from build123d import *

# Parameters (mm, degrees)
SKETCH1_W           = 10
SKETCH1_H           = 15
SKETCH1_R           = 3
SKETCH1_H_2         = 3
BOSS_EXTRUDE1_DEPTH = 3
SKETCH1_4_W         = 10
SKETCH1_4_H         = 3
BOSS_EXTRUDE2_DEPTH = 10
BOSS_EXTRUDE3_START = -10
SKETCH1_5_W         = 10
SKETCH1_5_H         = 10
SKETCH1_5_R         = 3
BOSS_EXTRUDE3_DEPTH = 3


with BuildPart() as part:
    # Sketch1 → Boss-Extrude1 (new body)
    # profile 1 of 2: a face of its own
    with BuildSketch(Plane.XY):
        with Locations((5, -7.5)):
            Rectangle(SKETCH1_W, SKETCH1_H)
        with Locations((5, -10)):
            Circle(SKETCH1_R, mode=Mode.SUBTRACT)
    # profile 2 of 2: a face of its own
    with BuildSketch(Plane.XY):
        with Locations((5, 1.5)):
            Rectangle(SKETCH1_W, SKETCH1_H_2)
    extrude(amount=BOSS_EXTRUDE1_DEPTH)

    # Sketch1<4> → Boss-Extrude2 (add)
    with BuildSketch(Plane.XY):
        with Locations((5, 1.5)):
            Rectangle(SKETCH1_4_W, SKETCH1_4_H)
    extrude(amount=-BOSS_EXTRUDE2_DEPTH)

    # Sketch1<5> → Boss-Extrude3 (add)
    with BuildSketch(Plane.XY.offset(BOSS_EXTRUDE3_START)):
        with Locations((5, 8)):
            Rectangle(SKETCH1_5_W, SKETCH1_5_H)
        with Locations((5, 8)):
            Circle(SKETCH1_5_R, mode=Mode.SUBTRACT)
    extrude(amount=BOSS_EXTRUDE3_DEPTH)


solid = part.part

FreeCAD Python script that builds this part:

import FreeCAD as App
import Part
import Sketcher
from FreeCAD import Vector
Q = App.Units.Quantity


def add_polygon(sketch, points):
    """Adds a closed chain of lines whose ends are joined by coincident constraints."""
    first, n = sketch.GeometryCount, len(points)
    for a, b in zip(points, points[1:] + points[:1]):
        sketch.addGeometry(Part.LineSegment(App.Vector(*a, 0), App.Vector(*b, 0)), False)
    for i in range(n):
        sketch.addConstraint(Sketcher.Constraint("Coincident", first + i, 2, first + (i + 1) % n, 1))

doc = App.newDocument("Part")
body = doc.addObject("PartDesign::Body", "Body")

# Sketch on XY plane
sketch1 = body.newObject("Sketcher::SketchObject", "Sketch")
sketch1.AttachmentSupport = (doc.getObject("XY_Plane"), [""])
sketch1.MapMode = "FlatFace"
add_polygon(sketch1, [(0, -15), (10, -15), (10, 3), (0, 3)])  # lines 0-3
sketch1.addGeometry(Part.Circle(Vector(5, -10, 0), Vector(0, 0, 1), 3), False)  # 4
sketch1.addConstraint(Sketcher.Constraint("Horizontal", 0))
sketch1.addConstraint(Sketcher.Constraint("Vertical", 1))
sketch1.addConstraint(Sketcher.Constraint("Horizontal", 2))
sketch1.addConstraint(Sketcher.Constraint("Vertical", 3))
sketch1.addConstraint(Sketcher.Constraint("PointOnObject", 2, 2, -2))
sketch1.addConstraint(Sketcher.Constraint("Diameter", 4, Q("6 mm")))
sketch1.addConstraint(Sketcher.Constraint("DistanceX", 0, 1, 0, 2, Q("10 mm")))
sketch1.addConstraint(Sketcher.Constraint("DistanceY", 1, 1, 1, 2, Q("18 mm")))
sketch1.addConstraint(Sketcher.Constraint("DistanceX", -1, 1, 4, 3, Q("5 mm")))
sketch1.addConstraint(Sketcher.Constraint("DistanceY", 4, 3, -1, 1, Q("10 mm")))
sketch1.addConstraint(Sketcher.Constraint("DistanceY", 0, 2, -1, 1, Q("15 mm")))
pad1 = body.newObject("PartDesign::Pad", "Pad")
pad1.Profile = sketch1
pad1.Length = 3

# Sketch on XY plane
sketch2 = body.newObject("Sketcher::SketchObject", "Sketch001")
sketch2.AttachmentSupport = (doc.getObject("XY_Plane"), [""])
sketch2.MapMode = "FlatFace"
add_polygon(sketch2, [(0, 3), (0, 0), (10, 0), (10, 3)])  # lines 0-3
sketch2.addConstraint(Sketcher.Constraint("Vertical", 0))
sketch2.addConstraint(Sketcher.Constraint("Horizontal", 1))
sketch2.addConstraint(Sketcher.Constraint("Vertical", 2))
sketch2.addConstraint(Sketcher.Constraint("Horizontal", 3))
sketch2.addConstraint(Sketcher.Constraint("Coincident", 0, 2, -1, 1))
sketch2.addConstraint(Sketcher.Constraint("DistanceX", 1, 1, 1, 2, Q("10 mm")))
sketch2.addConstraint(Sketcher.Constraint("DistanceY", 0, 2, 0, 1, Q("3 mm")))
pad2 = body.newObject("PartDesign::Pad", "Pad001")
pad2.Profile = sketch2
pad2.Length = 10
pad2.Reversed = True

# Sketch on XY plane
sketch3 = body.newObject("Sketcher::SketchObject", "Sketch002")
sketch3.AttachmentSupport = (doc.getObject("XY_Plane"), [""])
sketch3.MapMode = "FlatFace"
sketch3.AttachmentOffset = App.Placement(Vector(0, 0, -10), App.Rotation())
add_polygon(sketch3, [(0, 13), (0, 3), (10, 3), (10, 13)])  # lines 0-3
sketch3.addGeometry(Part.Circle(Vector(5, 8, 0), Vector(0, 0, 1), 3), False)  # 4
sketch3.addConstraint(Sketcher.Constraint("Vertical", 0))
sketch3.addConstraint(Sketcher.Constraint("Horizontal", 1))
sketch3.addConstraint(Sketcher.Constraint("Vertical", 2))
sketch3.addConstraint(Sketcher.Constraint("Horizontal", 3))
sketch3.addConstraint(Sketcher.Constraint("PointOnObject", 0, 2, -2))
sketch3.addConstraint(Sketcher.Constraint("Equal", 3, 0))
sketch3.addConstraint(Sketcher.Constraint("Diameter", 4, Q("6 mm")))
sketch3.addConstraint(Sketcher.Constraint("DistanceX", 1, 1, 1, 2, Q("10 mm")))
sketch3.addConstraint(Sketcher.Constraint("DistanceX", -1, 1, 4, 3, Q("5 mm")))
sketch3.addConstraint(Sketcher.Constraint("DistanceY", -1, 1, 4, 3, Q("8 mm")))
sketch3.addConstraint(Sketcher.Constraint("DistanceY", -1, 1, 0, 2, Q("3 mm")))
pad3 = body.newObject("PartDesign::Pad", "Pad002")
pad3.Profile = sketch3
pad3.Length = 3

doc.recompute()
